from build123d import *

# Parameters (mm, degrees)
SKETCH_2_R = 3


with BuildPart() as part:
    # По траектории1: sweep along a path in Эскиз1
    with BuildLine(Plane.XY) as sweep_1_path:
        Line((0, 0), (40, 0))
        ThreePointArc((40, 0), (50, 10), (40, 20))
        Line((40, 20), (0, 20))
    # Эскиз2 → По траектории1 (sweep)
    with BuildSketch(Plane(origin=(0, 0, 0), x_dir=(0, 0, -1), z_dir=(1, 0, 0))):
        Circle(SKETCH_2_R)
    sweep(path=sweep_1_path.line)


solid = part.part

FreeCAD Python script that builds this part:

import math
import FreeCAD as App
import Part
import Sketcher
Q = App.Units.Quantity

doc = App.newDocument("Part")
body = doc.addObject("PartDesign::Body", "Body")

sketch1 = doc.addObject("Sketcher::SketchObject", "Sketch")
body.addObject(sketch1)
sketch1.AttachmentSupport = (doc.YZ_Plane, [""])
sketch1.MapMode = "FlatFace"
sketch1.addGeometry(Part.Circle(App.Vector(0, 0, 0), App.Vector(0, 0, 1), 3), False)
sketch1.addConstraint(Sketcher.Constraint("Coincident", 0, 3, -1, 1))
sketch1.addConstraint(Sketcher.Constraint("Diameter", 0, Q("6 mm")))

sketch2 = doc.addObject("Sketcher::SketchObject", "Sketch001")
body.addObject(sketch2)
sketch2.AttachmentSupport = (doc.XY_Plane, [""])
sketch2.MapMode = "FlatFace"
sketch2.addGeometry(Part.LineSegment(App.Vector(0, 0, 0), App.Vector(40, 0, 0)), False)
sketch2.addGeometry(Part.ArcOfCircle(Part.Circle(App.Vector(40, 10, 0), App.Vector(0, 0, 1), 10), math.radians(-90), math.radians(90)), False)
sketch2.addGeometry(Part.LineSegment(App.Vector(40, 20, 0), App.Vector(0, 20, 0)), False)
sketch2.addConstraint(Sketcher.Constraint("Tangent", 0, 2, 1, 1))
sketch2.addConstraint(Sketcher.Constraint("Tangent", 1, 2, 2, 1))
sketch2.addConstraint(Sketcher.Constraint("Horizontal", 0))
sketch2.addConstraint(Sketcher.Constraint("Horizontal", 2))
sketch2.addConstraint(Sketcher.Constraint("Coincident", 0, 1, -1, 1))
sketch2.addConstraint(Sketcher.Constraint("PointOnObject", 2, 2, -2))
sketch2.addConstraint(Sketcher.Constraint("Radius", 1, Q("10 mm")))
sketch2.addConstraint(Sketcher.Constraint("DistanceX", 0, 1, 0, 2, Q("40 mm")))
doc.recompute()

additivepipe = doc.addObject("PartDesign::AdditivePipe", "AdditivePipe")
body.addObject(additivepipe)
additivepipe.Profile = sketch1
additivepipe.Spine = (sketch2, ["Edge1", "Edge2", "Edge3"])

doc.recompute()
